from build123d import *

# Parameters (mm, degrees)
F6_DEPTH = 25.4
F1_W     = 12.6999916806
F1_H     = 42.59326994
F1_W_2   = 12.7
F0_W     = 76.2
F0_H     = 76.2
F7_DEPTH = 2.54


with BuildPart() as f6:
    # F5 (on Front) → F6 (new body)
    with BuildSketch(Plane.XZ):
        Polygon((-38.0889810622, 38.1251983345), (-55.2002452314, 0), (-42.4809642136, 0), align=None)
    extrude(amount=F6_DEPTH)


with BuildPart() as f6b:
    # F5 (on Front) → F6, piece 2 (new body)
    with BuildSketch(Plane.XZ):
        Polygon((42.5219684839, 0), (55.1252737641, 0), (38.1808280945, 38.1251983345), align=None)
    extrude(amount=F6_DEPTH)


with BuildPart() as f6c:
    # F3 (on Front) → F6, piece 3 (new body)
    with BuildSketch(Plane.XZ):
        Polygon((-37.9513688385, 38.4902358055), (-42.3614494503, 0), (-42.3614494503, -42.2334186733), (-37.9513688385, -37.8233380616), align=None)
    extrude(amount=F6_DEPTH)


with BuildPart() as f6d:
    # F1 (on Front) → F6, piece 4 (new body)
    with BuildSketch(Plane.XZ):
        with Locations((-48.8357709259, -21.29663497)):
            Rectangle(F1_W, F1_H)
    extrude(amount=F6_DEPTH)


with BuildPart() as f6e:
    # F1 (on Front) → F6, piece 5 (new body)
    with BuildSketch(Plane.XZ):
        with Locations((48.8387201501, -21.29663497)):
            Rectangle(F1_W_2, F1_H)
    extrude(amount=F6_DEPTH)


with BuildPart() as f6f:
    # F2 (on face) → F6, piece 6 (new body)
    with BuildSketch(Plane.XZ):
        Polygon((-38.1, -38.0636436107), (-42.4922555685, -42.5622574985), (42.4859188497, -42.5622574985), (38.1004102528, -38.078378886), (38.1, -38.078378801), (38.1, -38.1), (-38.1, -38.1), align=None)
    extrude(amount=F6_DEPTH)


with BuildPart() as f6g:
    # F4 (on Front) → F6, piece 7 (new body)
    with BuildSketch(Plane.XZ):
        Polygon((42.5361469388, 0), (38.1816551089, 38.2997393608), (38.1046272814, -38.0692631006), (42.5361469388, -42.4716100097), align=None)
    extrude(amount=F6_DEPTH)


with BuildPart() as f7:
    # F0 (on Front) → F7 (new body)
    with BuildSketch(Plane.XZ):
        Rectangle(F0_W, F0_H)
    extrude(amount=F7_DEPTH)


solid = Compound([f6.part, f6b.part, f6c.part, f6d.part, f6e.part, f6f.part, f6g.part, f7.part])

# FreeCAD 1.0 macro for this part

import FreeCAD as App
import Part
import Sketcher
from FreeCAD import Vector
Q = App.Units.Quantity


def add_polygon(sketch, points):
    """Adds a closed chain of lines whose ends are joined by coincident constraints."""
    first, n = sketch.GeometryCount, len(points)
    for a, b in zip(points, points[1:] + points[:1]):
        sketch.addGeometry(Part.LineSegment(App.Vector(*a, 0), App.Vector(*b, 0)), False)
    for i in range(n):
        sketch.addConstraint(Sketcher.Constraint("Coincident", first + i, 2, first + (i + 1) % n, 1))

doc = App.newDocument("Part")
body = doc.addObject("PartDesign::Body", "Body")

# Sketch on XZ plane
sketch1 = body.newObject("Sketcher::SketchObject", "Sketch")
sketch1.AttachmentSupport = (doc.getObject("XZ_Plane"), [""])
sketch1.MapMode = "FlatFace"
add_polygon(sketch1, [(-38.088981, 38.125198), (-55.200245, 0), (-42.480964, 0)])  # lines 0-2
sketch1.addConstraint([
    Sketcher.Constraint("Horizontal", 1),
    Sketcher.Constraint("PointOnObject", 0, 2, -1),
    Sketcher.Constraint("DistanceX", 1, 1, 1, 2, Q("12.719281 mm")),
    Sketcher.Constraint("DistanceY", -1, 1, 2, 2, Q("38.125198 mm")),
    Sketcher.Constraint("Distance", 2, Q("38.377341 mm")),
    Sketcher.Constraint("DistanceX", 2, 2, -1, 1, Q("38.088981 mm")),
])
pad1 = body.newObject("PartDesign::Pad", "Pad")
pad1.Profile = sketch1
pad1.Length = Q("1 in")
body2 = doc.addObject("PartDesign::Body", "Body001")

# Sketch on XZ plane
sketch2 = body2.newObject("Sketcher::SketchObject", "Sketch001")
sketch2.AttachmentSupport = (doc.getObject("XZ_Plane001"), [""])
sketch2.MapMode = "FlatFace"
add_polygon(sketch2, [(42.521968, 0), (55.125274, 0), (38.180828, 38.125198)])  # lines 0-2
sketch2.addConstraint([
    Sketcher.Constraint("Horizontal", 0),
    Sketcher.Constraint("PointOnObject", 0, 2, -1),
    Sketcher.Constraint("DistanceY", -1, 1, 1, 2, Q("38.125198 mm")),
    Sketcher.Constraint("DistanceX", 0, 1, 0, 2, Q("12.603305 mm")),
    Sketcher.Constraint("DistanceX", -1, 1, 1, 2, Q("38.180828 mm")),
    Sketcher.Constraint("DistanceX", -1, 1, 2, 2, Q("42.521968 mm")),
])
pad2 = body2.newObject("PartDesign::Pad", "Pad001")
pad2.Profile = sketch2
pad2.Length = Q("1 in")
body3 = doc.addObject("PartDesign::Body", "Body002")

# Sketch on XZ plane
sketch3 = body3.newObject("Sketcher::SketchObject", "Sketch002")
sketch3.AttachmentSupport = (doc.getObject("XZ_Plane002"), [""])
sketch3.MapMode = "FlatFace"
add_polygon(sketch3, [(-37.951369, 38.490236), (-42.361449, 0), (-42.361449, -42.233419), (-37.951369, -37.823338)])  # lines 0-3
sketch3.addConstraint([
    Sketcher.Constraint("Vertical", 1),
    Sketcher.Constraint("Vertical", 3),
    Sketcher.Constraint("PointOnObject", 0, 2, -1),
    Sketcher.Constraint("Angle", 2, Q("45 deg")),
    Sketcher.Constraint("DistanceY", 1, 2, 1, 1, Q("42.233419 mm")),
    Sketcher.Constraint("Distance", 0, Q("38.742058 mm")),
    Sketcher.Constraint("DistanceY", 3, 1, 3, 2, Q("76.313574 mm")),
    Sketcher.Constraint("DistanceX", 0, 2, -1, 1, Q("42.361449 mm")),
])
pad3 = body3.newObject("PartDesign::Pad", "Pad002")
pad3.Profile = sketch3
pad3.Length = Q("1 in")
body4 = doc.addObject("PartDesign::Body", "Body003")

# Sketch on XZ plane
sketch4 = body4.newObject("Sketcher::SketchObject", "Sketch003")
sketch4.AttachmentSupport = (doc.getObject("XZ_Plane003"), [""])
sketch4.MapMode = "FlatFace"
add_polygon(sketch4, [(-55.185767, 0), (-55.185767, -42.59327), (-42.485775, -42.59327), (-42.485775, 0)])  # lines 0-3
sketch4.addConstraint([
    Sketcher.Constraint("Vertical", 0),
    Sketcher.Constraint("Horizontal", 1),
    Sketcher.Constraint("Vertical", 2),
    Sketcher.Constraint("Horizontal", 3),
    Sketcher.Constraint("PointOnObject", 2, 2, -1),
    Sketcher.Constraint("DistanceX", 1, 1, 1, 2, Q("12.699992 mm")),
    Sketcher.Constraint("DistanceY", 0, 2, 0, 1, Q("42.59327 mm")),
    Sketcher.Constraint("DistanceX", 0, 2, -1, 1, Q("55.185767 mm")),
])
pad4 = body4.newObject("PartDesign::Pad", "Pad003")
pad4.Profile = sketch4
pad4.Length = Q("1 in")
body5 = doc.addObject("PartDesign::Body", "Body004")

# Sketch on XZ plane
sketch5 = body5.newObject("Sketcher::SketchObject", "Sketch004")
sketch5.AttachmentSupport = (doc.getObject("XZ_Plane004"), [""])
sketch5.MapMode = "FlatFace"
add_polygon(sketch5, [(42.48872, 0), (42.48872, -42.59327), (55.18872, -42.59327), (55.18872, 0)])  # lines 0-3
sketch5.addConstraint([
    Sketcher.Constraint("Vertical", 0),
    Sketcher.Constraint("Horizontal", 1),
    Sketcher.Constraint("Vertical", 2),
    Sketcher.Constraint("Horizontal", 3),
    Sketcher.Constraint("PointOnObject", 2, 2, -1),
    Sketcher.Constraint("DistanceX", 1, 1, 1, 2, Q("0.5 in")),
    Sketcher.Constraint("DistanceY", 0, 2, 0, 1, Q("42.59327 mm")),
    Sketcher.Constraint("DistanceX", -1, 1, 0, 2, Q("42.48872 mm")),
])
pad5 = body5.newObject("PartDesign::Pad", "Pad004")
pad5.Profile = sketch5
pad5.Length = Q("1 in")
body6 = doc.addObject("PartDesign::Body", "Body005")

# Sketch on XZ plane
sketch6 = body6.newObject("Sketcher::SketchObject", "Sketch005")
sketch6.AttachmentSupport = (doc.getObject("XZ_Plane005"), [""])
sketch6.MapMode = "FlatFace"
add_polygon(sketch6, [(-38.1, -38.063644), (-42.492256, -42.562257), (42.485919, -42.562257), (38.10041, -38.078379), (38.1, -38.078379), (38.1, -38.1), (-38.1, -38.1)])  # lines 0-6
sketch6.addConstraint([
    Sketcher.Constraint("Horizontal", 1),
    Sketcher.Constraint("Horizontal", 3),
    Sketcher.Constraint("Vertical", 4),
    Sketcher.Constraint("Horizontal", 5),
    Sketcher.Constraint("Vertical", 6),
    Sketcher.Constraint("DistanceX", 5, 2, 5, 1, Q("3 in")),
    Sketcher.Constraint("DistanceX", -1, 1, 3, 2, Q("1.5 in")),
    Sketcher.Constraint("DistanceY", 4, 2, -1, 1, Q("1.5 in")),
    Sketcher.Constraint("DistanceX", 3, 2, 3, 1, Q("0.00041 mm")),
    Sketcher.Constraint("DistanceY", 4, 2, 4, 1, Q("0.021621 mm")),
    Sketcher.Constraint("Distance", 2, Q("6.27199 mm")),
    Sketcher.Constraint("DistanceX", 1, 1, 1, 2, Q("84.978174 mm")),
    Sketcher.Constraint("DistanceY", 6, 1, 6, 2, Q("0.036356 mm")),
    Sketcher.Constraint("DistanceX", -1, 1, 1, 2, Q("42.485919 mm")),
])
pad6 = body6.newObject("PartDesign::Pad", "Pad005")
pad6.Profile = sketch6
pad6.Length = Q("1 in")
body7 = doc.addObject("PartDesign::Body", "Body006")

# Sketch on XZ plane
sketch7 = body7.newObject("Sketcher::SketchObject", "Sketch006")
sketch7.AttachmentSupport = (doc.getObject("XZ_Plane006"), [""])
sketch7.MapMode = "FlatFace"
add_polygon(sketch7, [(42.536147, 0), (38.181655, 38.299739), (38.104627, -38.069263), (42.536147, -42.47161)])  # lines 0-3
sketch7.addConstraint([
    Sketcher.Constraint("Vertical", 3),
    Sketcher.Constraint("PointOnObject", 3, 2, -1),
    Sketcher.Constraint("DistanceY", 3, 1, 3, 2, Q("42.47161 mm")),
    Sketcher.Constraint("Distance", 1, Q("76.369041 mm")),
    Sketcher.Constraint("Distance", 2, Q("6.246521 mm")),
    Sketcher.Constraint("DistanceY", -1, 1, 0, 2, Q("38.299739 mm")),
    Sketcher.Constraint("DistanceX", 0, 2, 2, 2, Q("4.354492 mm")),
    Sketcher.Constraint("DistanceX", -1, 1, 0, 2, Q("38.181655 mm")),
])
pad7 = body7.newObject("PartDesign::Pad", "Pad006")
pad7.Profile = sketch7
pad7.Length = Q("1 in")
body8 = doc.addObject("PartDesign::Body", "Body007")

# Sketch on XZ plane
sketch8 = body8.newObject("Sketcher::SketchObject", "Sketch007")
sketch8.AttachmentSupport = (doc.getObject("XZ_Plane007"), [""])
sketch8.MapMode = "FlatFace"
add_polygon(sketch8, [(-38.1, 38.1), (-38.1, -38.1), (38.1, -38.1), (38.1, 38.1)])  # lines 0-3
sketch8.addConstraint([
    Sketcher.Constraint("Vertical", 0),
    Sketcher.Constraint("Horizontal", 1),
    Sketcher.Constraint("Vertical", 2),
    Sketcher.Constraint("Horizontal", 3),
    Sketcher.Constraint("Symmetric", 0, 2, 2, 2, -1, 1),
    Sketcher.Constraint("Equal", 3, 0),
    Sketcher.Constraint("DistanceX", 1, 1, 1, 2, Q("3 in")),
])
pad8 = body8.newObject("PartDesign::Pad", "Pad007")
pad8.Profile = sketch8
pad8.Length = Q("0.1 in")

doc.recompute()
